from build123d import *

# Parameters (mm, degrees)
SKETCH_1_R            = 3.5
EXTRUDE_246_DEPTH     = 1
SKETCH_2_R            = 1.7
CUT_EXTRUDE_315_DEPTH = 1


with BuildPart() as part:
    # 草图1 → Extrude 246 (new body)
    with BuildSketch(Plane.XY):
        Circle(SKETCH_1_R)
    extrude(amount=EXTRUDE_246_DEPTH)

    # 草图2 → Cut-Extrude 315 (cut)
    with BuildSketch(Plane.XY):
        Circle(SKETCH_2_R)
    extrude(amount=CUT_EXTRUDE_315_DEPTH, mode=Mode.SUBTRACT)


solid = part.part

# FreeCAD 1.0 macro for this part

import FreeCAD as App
import Part
import Sketcher
Q = App.Units.Quantity

doc = App.newDocument("Part")
body = doc.addObject("PartDesign::Body", "Body")

sketch1 = body.newObject("Sketcher::SketchObject", "Sketch")
sketch1.AttachmentSupport = (doc.getObject("XY_Plane"), [""])
sketch1.MapMode = "FlatFace"
sketch1.addGeometry(Part.Circle(App.Vector(0, 0, 0), App.Vector(0, 0, 1), 3.5), False)
sketch1.addConstraint(Sketcher.Constraint("Coincident", 0, 3, -1, 1))
sketch1.addConstraint(Sketcher.Constraint("Diameter", 0, Q("7 mm")))
pad1 = body.newObject("PartDesign::Pad", "Pad")
pad1.Profile = sketch1
pad1.Length = 1

sketch2 = body.newObject("Sketcher::SketchObject", "Sketch001")
sketch2.AttachmentSupport = (doc.getObject("XY_Plane"), [""])
sketch2.MapMode = "FlatFace"
sketch2.addGeometry(Part.Circle(App.Vector(0, 0, 0), App.Vector(0, 0, 1), 1.7), False)
sketch2.addConstraint(Sketcher.Constraint("Coincident", 0, 3, -1, 1))
sketch2.addConstraint(Sketcher.Constraint("Diameter", 0, Q("3.4 mm")))
pocket1 = body.newObject("PartDesign::Pocket", "Pocket")
pocket1.Profile = sketch2
pocket1.Length = 1
pocket1.Reversed = True

doc.recompute()
